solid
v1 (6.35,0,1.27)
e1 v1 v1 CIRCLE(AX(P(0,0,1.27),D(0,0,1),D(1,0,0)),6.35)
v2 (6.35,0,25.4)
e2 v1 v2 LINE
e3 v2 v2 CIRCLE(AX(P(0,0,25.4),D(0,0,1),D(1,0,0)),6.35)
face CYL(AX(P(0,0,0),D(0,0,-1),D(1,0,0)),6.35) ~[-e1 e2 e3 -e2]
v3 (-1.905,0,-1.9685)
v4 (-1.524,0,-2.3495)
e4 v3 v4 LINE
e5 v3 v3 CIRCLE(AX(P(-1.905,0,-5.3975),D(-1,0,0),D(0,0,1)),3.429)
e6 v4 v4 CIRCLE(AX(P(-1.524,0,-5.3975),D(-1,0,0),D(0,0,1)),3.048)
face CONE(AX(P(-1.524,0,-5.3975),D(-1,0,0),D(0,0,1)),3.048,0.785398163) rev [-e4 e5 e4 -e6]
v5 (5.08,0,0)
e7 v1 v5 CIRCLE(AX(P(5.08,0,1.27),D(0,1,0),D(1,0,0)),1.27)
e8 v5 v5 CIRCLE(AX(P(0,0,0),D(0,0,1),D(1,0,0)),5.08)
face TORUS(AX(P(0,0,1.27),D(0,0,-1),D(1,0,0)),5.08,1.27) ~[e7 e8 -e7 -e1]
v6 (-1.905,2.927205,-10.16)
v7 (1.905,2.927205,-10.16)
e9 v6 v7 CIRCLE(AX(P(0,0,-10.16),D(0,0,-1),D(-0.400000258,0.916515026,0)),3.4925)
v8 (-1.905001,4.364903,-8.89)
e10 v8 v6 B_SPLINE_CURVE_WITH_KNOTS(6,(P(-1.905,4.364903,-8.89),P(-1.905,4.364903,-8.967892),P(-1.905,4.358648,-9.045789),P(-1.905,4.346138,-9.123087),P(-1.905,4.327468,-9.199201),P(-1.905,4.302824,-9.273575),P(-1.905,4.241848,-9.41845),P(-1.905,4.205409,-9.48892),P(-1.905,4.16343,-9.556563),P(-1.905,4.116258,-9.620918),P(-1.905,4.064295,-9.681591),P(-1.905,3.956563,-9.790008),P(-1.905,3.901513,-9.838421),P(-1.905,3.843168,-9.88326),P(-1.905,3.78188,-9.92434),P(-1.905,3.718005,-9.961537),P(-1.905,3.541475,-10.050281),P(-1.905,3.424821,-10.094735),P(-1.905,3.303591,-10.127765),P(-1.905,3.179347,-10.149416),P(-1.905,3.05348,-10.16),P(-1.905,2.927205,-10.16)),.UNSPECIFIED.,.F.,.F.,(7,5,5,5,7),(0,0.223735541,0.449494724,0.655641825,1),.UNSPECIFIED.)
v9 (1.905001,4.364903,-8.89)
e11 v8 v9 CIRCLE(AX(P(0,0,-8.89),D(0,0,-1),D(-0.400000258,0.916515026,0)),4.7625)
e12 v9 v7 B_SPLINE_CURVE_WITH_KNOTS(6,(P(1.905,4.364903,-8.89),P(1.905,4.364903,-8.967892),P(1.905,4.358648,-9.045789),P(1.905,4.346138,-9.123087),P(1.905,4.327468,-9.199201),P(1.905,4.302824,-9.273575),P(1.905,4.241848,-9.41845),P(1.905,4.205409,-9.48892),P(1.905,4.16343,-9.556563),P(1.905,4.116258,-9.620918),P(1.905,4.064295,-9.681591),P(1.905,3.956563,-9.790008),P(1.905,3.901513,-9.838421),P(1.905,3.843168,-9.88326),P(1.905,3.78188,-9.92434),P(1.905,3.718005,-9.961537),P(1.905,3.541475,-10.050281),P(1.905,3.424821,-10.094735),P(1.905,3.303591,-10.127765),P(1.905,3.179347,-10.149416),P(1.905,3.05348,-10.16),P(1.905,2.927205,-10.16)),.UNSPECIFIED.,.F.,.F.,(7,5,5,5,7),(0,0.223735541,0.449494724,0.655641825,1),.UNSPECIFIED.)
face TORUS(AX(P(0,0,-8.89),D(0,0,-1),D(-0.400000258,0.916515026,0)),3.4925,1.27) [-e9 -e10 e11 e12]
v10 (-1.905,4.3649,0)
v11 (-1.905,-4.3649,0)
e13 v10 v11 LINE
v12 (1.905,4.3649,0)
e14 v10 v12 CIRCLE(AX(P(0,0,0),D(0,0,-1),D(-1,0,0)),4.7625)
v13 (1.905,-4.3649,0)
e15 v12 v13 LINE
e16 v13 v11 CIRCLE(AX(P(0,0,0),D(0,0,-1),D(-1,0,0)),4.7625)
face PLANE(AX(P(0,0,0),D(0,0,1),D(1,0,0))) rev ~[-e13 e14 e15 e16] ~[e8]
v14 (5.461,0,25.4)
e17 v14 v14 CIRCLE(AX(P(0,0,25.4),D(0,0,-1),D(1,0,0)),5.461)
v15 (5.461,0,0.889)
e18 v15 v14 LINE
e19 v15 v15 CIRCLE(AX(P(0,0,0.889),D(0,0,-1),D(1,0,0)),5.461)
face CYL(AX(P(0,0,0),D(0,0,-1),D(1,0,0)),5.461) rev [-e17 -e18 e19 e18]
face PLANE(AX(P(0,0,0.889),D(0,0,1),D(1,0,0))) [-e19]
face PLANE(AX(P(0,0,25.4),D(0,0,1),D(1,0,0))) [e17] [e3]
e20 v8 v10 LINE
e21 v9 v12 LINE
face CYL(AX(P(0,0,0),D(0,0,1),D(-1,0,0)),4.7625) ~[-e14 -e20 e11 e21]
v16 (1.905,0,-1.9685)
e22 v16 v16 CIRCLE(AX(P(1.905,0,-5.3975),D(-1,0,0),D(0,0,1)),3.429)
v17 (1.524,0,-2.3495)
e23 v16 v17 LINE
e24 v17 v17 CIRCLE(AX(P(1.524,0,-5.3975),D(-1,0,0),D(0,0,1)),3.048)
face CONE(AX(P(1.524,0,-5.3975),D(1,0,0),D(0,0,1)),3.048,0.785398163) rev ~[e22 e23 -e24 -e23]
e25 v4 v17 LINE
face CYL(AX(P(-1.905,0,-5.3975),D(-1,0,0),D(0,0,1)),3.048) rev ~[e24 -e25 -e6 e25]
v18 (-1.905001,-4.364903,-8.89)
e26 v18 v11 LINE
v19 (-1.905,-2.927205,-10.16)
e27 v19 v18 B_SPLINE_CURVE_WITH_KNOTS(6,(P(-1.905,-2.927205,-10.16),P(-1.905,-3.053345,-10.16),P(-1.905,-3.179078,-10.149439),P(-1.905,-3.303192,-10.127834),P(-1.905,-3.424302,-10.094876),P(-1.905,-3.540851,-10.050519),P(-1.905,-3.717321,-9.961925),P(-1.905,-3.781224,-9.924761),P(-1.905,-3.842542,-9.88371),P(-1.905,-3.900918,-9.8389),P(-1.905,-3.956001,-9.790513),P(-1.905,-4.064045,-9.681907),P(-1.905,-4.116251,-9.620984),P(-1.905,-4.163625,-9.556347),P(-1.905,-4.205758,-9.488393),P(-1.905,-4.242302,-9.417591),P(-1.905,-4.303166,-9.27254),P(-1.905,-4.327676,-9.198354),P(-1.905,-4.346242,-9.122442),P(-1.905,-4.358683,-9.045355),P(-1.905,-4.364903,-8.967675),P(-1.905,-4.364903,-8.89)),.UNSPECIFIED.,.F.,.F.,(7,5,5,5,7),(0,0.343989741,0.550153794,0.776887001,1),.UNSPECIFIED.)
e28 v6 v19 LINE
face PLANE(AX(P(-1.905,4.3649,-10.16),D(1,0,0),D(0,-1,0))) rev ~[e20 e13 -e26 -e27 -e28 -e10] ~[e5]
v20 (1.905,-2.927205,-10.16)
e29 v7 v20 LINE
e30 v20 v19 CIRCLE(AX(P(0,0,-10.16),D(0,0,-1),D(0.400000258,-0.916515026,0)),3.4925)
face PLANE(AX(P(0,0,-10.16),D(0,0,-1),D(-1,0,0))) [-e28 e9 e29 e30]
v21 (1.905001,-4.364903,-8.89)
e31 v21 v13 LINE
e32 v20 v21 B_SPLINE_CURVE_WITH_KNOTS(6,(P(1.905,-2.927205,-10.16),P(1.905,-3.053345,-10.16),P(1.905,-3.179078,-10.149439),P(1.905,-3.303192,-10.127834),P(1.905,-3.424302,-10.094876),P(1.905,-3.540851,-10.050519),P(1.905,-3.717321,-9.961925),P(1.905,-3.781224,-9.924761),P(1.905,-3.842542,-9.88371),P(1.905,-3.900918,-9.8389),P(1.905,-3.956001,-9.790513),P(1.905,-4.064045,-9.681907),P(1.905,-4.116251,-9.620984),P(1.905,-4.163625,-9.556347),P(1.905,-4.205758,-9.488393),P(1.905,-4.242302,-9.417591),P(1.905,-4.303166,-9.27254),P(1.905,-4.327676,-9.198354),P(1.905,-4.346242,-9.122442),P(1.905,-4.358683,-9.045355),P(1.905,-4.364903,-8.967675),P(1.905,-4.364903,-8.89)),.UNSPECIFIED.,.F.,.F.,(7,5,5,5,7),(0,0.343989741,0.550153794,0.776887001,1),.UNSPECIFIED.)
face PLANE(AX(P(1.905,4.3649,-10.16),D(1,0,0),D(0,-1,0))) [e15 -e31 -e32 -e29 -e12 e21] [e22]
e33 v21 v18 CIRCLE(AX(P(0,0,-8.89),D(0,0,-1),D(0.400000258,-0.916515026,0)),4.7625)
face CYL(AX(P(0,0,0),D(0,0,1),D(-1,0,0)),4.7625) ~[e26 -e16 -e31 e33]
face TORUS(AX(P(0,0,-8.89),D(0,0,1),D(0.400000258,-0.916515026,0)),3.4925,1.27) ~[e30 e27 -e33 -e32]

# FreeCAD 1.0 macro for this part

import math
import FreeCAD as App
import Part
import Sketcher

V = App.Vector
Q = App.Units.Quantity


def edges_at(feature, points):
    """Names of the edges that pass closest to the given points."""
    edges = feature.Shape.Edges
    near = lambda p: min(range(len(edges)), key=lambda i: edges[i].distToShape(Part.Vertex(*p))[0])
    return sorted({f"Edge{near(p) + 1}" for p in points})


def faces_at(feature, points):
    """Names of the faces that lie closest to the given points."""
    faces = feature.Shape.Faces
    near = lambda p: min(range(len(faces)), key=lambda i: faces[i].distToShape(Part.Vertex(*p))[0])
    return sorted({f"Face{near(p) + 1}" for p in points})

doc = App.newDocument("Part")
body = doc.addObject("PartDesign::Body", "Body")

# Sketch on XY plane
sketch1 = body.newObject("Sketcher::SketchObject", "Sketch")
sketch1.AttachmentSupport = (doc.getObject("XY_Plane"), [""])
sketch1.MapMode = "FlatFace"
sketch1.addGeometry(Part.Circle(V(0, 0, 0), V(0, 0, 1), 6.35), False)
sketch1.addConstraint([
    Sketcher.Constraint("Coincident", 0, 3, -1, 1),
    Sketcher.Constraint("Diameter", 0, Q("0.5 in")),
])
pad1 = body.newObject("PartDesign::Pad", "Pad")
pad1.Profile = sketch1
pad1.Length = Q("1 in")
doc.recompute()

thickness = body.newObject("PartDesign::Thickness", "Thickness")
thickness.Base = (pad1, faces_at(pad1, [(-1.813, -0.477, 25.4)]))
thickness.Value = Q("0.035 in")
thickness.Reversed = True
thickness.Join = "Intersection"
doc.recompute()

fillet = body.newObject("PartDesign::Fillet", "Fillet")
fillet.Base = (thickness, edges_at(thickness, [(-6.35, 0, 0)]))
fillet.Radius = Q("0.05 in")

# Sketch on XY plane
sketch2 = body.newObject("Sketcher::SketchObject", "Sketch001")
sketch2.AttachmentSupport = (doc.getObject("XY_Plane"), [""])
sketch2.MapMode = "FlatFace"
sketch2.addGeometry(Part.Circle(V(0, 0, 0), V(0, 0, 1), 4.7625), False)
sketch2.addConstraint([
    Sketcher.Constraint("Coincident", 0, 3, -1, 1),
    Sketcher.Constraint("Diameter", 0, Q("0.375 in")),
])
pad2 = body.newObject("PartDesign::Pad", "Pad001")
pad2.Profile = sketch2
pad2.Length = Q("0.4 in")
pad2.Reversed = True

# Sketch on XY plane
sketch3 = body.newObject("Sketcher::SketchObject", "Sketch002")
sketch3.AttachmentSupport = (doc.getObject("XY_Plane"), [""])
sketch3.MapMode = "FlatFace"
sketch3.AttachmentOffset = App.Placement(V(0, 0, -0.4 * 25.4), App.Rotation())
sketch3.addGeometry([
    Part.ArcOfCircle(Part.Circle(V(0, 0, 0), V(0, 0, 1), 4.7625), math.radians(113.578195), math.radians(246.421805)),
    Part.LineSegment(V(-1.905, -4.3649, 0), V(-1.905, 4.3649, 0)),
    Part.LineSegment(V(1.905, -4.3649, 0), V(1.905, 4.3649, 0)),
    Part.ArcOfCircle(Part.Circle(V(0, 0, 0), V(0, 0, 1), 4.7625), math.radians(-66.421805), math.radians(66.421805)),
], False)
sketch3.addConstraint([
    Sketcher.Constraint("Coincident", 0, 1, 1, 2),
    Sketcher.Constraint("Coincident", 1, 1, 0, 2),
    Sketcher.Constraint("Coincident", 2, 1, 3, 1),
    Sketcher.Constraint("Coincident", 3, 2, 2, 2),
    Sketcher.Constraint("Vertical", 1),
    Sketcher.Constraint("Vertical", 2),
    Sketcher.Constraint("Coincident", 0, 3, -1, 1),
    Sketcher.Constraint("Coincident", 3, 3, -1, 1),
    Sketcher.Constraint("Equal", 0, 3),
    Sketcher.Constraint("Horizontal", 1, 1, 2, 1),
    Sketcher.Constraint("DistanceX", 1, 1, 2, 1, Q("0.15 in")),
    Sketcher.Constraint("Radius", 0, Q("0.1875 in")),
])
pocket1 = body.newObject("PartDesign::Pocket", "Pocket")
pocket1.Profile = sketch3
pocket1.Length = Q("0.4 in")
pocket1.Reversed = True

# Sketch on YZ plane
sketch4 = body.newObject("Sketcher::SketchObject", "Sketch003")
sketch4.AttachmentSupport = (doc.getObject("YZ_Plane"), [""])
sketch4.MapMode = "FlatFace"
sketch4.AttachmentOffset = App.Placement(V(0, 0, -0.075 * 25.4), App.Rotation())
sketch4.addGeometry(Part.Circle(V(0, -5.3975, 0), V(0, 0, 1), 3.048), False)
sketch4.addConstraint([
    Sketcher.Constraint("PointOnObject", 0, 3, -2),
    Sketcher.Constraint("Diameter", 0, Q("0.24 in")),
    Sketcher.Constraint("DistanceY", 0, 3, -1, 1, Q("0.2125 in")),
])
pocket2 = body.newObject("PartDesign::Pocket", "Pocket001")
pocket2.Profile = sketch4
pocket2.Type = "ThroughAll"
pocket2.Midplane = True
doc.recompute()

chamfer = body.newObject("PartDesign::Chamfer", "Chamfer")
chamfer.Base = (pocket2, edges_at(pocket2, [(1.905, 0, -8.445), (-1.905, 0, -8.445)]))
chamfer.Size = Q("0.015 in")
doc.recompute()

fillet2 = body.newObject("PartDesign::Fillet", "Fillet001")
fillet2.Base = (chamfer, edges_at(chamfer, [(0, -4.763, -10.16), (0, 4.763, -10.16)]))
fillet2.Radius = Q("0.05 in")

doc.recompute()
